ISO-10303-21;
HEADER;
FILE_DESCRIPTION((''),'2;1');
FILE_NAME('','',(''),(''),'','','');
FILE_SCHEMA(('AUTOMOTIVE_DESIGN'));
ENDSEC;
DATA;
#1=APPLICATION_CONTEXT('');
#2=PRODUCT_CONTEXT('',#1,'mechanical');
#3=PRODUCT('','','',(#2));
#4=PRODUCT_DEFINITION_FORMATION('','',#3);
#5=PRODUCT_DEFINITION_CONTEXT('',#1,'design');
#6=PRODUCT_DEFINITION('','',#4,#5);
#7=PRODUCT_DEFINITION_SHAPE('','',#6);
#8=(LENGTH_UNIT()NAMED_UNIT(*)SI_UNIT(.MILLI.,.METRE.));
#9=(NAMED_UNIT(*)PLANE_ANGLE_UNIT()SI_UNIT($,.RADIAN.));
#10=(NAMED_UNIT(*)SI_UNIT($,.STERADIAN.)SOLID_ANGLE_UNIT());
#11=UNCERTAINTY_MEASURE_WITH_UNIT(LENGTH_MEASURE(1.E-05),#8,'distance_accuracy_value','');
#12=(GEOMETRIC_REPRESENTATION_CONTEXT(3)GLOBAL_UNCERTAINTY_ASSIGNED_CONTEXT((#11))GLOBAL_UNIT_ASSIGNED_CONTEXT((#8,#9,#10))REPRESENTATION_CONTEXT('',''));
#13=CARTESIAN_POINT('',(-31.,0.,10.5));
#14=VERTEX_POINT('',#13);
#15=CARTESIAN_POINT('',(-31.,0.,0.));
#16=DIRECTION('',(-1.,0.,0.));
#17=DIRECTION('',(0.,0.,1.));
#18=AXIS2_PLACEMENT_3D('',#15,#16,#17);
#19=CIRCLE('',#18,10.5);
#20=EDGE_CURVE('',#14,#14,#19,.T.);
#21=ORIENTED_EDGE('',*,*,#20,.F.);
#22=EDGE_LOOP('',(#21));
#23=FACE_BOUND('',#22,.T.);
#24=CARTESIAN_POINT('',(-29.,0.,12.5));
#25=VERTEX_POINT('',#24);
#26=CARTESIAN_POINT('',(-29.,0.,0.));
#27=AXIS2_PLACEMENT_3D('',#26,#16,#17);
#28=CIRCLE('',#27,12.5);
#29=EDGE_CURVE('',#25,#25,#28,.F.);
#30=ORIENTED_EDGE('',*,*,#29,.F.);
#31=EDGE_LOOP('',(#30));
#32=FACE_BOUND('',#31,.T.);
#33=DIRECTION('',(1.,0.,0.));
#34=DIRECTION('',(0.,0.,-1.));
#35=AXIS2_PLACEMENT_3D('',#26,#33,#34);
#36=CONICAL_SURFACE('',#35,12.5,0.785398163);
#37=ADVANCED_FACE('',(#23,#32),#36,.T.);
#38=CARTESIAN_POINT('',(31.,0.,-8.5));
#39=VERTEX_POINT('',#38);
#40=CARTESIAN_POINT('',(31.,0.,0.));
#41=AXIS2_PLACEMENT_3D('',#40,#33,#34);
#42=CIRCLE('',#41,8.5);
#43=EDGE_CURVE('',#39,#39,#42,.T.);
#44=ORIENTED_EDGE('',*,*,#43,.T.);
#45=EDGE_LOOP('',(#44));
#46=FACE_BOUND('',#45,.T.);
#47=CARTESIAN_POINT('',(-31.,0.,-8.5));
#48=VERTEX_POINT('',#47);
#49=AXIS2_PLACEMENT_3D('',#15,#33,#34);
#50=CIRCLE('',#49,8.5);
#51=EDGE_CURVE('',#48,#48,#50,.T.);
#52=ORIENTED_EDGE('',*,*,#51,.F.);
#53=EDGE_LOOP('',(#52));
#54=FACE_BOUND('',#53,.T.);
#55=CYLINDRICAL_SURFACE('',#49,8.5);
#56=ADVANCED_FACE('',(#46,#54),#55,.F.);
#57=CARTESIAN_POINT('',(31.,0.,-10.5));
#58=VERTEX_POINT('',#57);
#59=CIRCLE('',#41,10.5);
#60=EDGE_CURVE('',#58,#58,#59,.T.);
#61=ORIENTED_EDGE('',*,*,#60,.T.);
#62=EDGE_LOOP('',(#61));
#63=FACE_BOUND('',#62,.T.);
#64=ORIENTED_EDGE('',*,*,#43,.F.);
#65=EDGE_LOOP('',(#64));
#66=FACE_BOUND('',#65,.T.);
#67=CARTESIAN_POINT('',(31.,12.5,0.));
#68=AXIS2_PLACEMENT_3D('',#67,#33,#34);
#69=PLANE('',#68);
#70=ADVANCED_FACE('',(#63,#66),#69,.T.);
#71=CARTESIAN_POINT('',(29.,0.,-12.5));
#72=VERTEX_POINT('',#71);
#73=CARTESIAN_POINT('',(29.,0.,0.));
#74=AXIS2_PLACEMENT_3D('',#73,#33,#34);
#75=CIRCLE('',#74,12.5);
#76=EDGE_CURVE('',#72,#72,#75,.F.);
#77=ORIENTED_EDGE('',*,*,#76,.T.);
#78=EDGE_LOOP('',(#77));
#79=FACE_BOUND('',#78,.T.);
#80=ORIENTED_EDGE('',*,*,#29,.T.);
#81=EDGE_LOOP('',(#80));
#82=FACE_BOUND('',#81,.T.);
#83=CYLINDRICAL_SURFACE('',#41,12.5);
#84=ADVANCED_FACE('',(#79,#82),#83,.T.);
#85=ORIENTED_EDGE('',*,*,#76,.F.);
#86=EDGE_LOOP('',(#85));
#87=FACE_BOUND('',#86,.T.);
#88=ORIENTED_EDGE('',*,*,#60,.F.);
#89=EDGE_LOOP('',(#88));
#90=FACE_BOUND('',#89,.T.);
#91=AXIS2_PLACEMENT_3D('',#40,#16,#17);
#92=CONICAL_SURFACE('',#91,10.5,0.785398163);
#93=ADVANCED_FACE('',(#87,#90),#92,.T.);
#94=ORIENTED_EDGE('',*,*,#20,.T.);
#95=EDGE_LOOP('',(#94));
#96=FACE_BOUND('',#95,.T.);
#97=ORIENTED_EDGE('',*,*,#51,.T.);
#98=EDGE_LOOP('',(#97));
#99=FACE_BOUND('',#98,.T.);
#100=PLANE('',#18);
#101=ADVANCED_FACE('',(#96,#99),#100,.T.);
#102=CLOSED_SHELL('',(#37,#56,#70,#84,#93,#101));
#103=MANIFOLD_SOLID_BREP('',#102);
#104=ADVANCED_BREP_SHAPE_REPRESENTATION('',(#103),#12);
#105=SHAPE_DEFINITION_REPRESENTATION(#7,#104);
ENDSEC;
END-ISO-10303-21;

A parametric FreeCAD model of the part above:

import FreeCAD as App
import Part
import Sketcher


def edges_at(feature, points):
    """Names of the edges that pass closest to the given points."""
    edges = feature.Shape.Edges
    near = lambda p: min(range(len(edges)), key=lambda i: edges[i].distToShape(Part.Vertex(*p))[0])
    return sorted({f"Edge{near(p) + 1}" for p in points})

doc = App.newDocument("Part")
body = doc.addObject("PartDesign::Body", "Body")

sketch1 = body.newObject("Sketcher::SketchObject", "Sketch")
sketch1.AttachmentSupport = (doc.getObject("XY_Plane"), [""])
sketch1.MapMode = "FlatFace"
sketch1.addGeometry([
    Part.LineSegment(App.Vector(-31, 12, 0), App.Vector(-31, 0, 0)),
    Part.LineSegment(App.Vector(-31, 0, 0), App.Vector(31, 0, 0)),
    Part.LineSegment(App.Vector(31, 0, 0), App.Vector(31, 12, 0)),
    Part.LineSegment(App.Vector(31, 12, 0), App.Vector(-31, 12, 0)),
], False)
sketch1.addConstraint([
    Sketcher.Constraint("Coincident", 0, 2, 1, 1),
    Sketcher.Constraint("Coincident", 1, 2, 2, 1),
    Sketcher.Constraint("Coincident", 2, 2, 3, 1),
    Sketcher.Constraint("Coincident", 3, 2, 0, 1),
    Sketcher.Constraint("Vertical", 0),
    Sketcher.Constraint("Horizontal", 1),
    Sketcher.Constraint("Vertical", 2),
    Sketcher.Constraint("Horizontal", 3),
    Sketcher.Constraint("Symmetric", 0, 2, 1, 2, -1, 1),
    Sketcher.Constraint("DistanceX", 1, 1, 1, 2, 62.0),
    Sketcher.Constraint("DistanceY", 0, 2, 0, 1, 12.5),
])
revolution = body.newObject("PartDesign::Revolution", "Revolution")
revolution.Profile = sketch1
revolution.ReferenceAxis = (sketch1, ["H_Axis"])
revolution.Angle = 360

sketch2 = body.newObject("Sketcher::SketchObject", "Sketch001")
sketch2.AttachmentSupport = (doc.getObject("YZ_Plane"), [""])
sketch2.MapMode = "FlatFace"
sketch2.AttachmentOffset = App.Placement(App.Vector(0, 0, 31), App.Rotation())
sketch2.addGeometry(Part.Circle(App.Vector(0, 0, 0), App.Vector(0, 0, 1), 8), False)
sketch2.addConstraint([
    Sketcher.Constraint("Coincident", 0, 3, -1, 1),
    Sketcher.Constraint("Diameter", 0, 17.0),
])
pocket1 = body.newObject("PartDesign::Pocket", "Pocket")
pocket1.Profile = sketch2
pocket1.Type = "ThroughAll"
doc.recompute()

chamfer = body.newObject("PartDesign::Chamfer", "Chamfer")
chamfer.Base = (pocket1, edges_at(pocket1, [(31, -12.5, 0), (-31, -12.5, 0)]))
chamfer.Size = 2

doc.recompute()
